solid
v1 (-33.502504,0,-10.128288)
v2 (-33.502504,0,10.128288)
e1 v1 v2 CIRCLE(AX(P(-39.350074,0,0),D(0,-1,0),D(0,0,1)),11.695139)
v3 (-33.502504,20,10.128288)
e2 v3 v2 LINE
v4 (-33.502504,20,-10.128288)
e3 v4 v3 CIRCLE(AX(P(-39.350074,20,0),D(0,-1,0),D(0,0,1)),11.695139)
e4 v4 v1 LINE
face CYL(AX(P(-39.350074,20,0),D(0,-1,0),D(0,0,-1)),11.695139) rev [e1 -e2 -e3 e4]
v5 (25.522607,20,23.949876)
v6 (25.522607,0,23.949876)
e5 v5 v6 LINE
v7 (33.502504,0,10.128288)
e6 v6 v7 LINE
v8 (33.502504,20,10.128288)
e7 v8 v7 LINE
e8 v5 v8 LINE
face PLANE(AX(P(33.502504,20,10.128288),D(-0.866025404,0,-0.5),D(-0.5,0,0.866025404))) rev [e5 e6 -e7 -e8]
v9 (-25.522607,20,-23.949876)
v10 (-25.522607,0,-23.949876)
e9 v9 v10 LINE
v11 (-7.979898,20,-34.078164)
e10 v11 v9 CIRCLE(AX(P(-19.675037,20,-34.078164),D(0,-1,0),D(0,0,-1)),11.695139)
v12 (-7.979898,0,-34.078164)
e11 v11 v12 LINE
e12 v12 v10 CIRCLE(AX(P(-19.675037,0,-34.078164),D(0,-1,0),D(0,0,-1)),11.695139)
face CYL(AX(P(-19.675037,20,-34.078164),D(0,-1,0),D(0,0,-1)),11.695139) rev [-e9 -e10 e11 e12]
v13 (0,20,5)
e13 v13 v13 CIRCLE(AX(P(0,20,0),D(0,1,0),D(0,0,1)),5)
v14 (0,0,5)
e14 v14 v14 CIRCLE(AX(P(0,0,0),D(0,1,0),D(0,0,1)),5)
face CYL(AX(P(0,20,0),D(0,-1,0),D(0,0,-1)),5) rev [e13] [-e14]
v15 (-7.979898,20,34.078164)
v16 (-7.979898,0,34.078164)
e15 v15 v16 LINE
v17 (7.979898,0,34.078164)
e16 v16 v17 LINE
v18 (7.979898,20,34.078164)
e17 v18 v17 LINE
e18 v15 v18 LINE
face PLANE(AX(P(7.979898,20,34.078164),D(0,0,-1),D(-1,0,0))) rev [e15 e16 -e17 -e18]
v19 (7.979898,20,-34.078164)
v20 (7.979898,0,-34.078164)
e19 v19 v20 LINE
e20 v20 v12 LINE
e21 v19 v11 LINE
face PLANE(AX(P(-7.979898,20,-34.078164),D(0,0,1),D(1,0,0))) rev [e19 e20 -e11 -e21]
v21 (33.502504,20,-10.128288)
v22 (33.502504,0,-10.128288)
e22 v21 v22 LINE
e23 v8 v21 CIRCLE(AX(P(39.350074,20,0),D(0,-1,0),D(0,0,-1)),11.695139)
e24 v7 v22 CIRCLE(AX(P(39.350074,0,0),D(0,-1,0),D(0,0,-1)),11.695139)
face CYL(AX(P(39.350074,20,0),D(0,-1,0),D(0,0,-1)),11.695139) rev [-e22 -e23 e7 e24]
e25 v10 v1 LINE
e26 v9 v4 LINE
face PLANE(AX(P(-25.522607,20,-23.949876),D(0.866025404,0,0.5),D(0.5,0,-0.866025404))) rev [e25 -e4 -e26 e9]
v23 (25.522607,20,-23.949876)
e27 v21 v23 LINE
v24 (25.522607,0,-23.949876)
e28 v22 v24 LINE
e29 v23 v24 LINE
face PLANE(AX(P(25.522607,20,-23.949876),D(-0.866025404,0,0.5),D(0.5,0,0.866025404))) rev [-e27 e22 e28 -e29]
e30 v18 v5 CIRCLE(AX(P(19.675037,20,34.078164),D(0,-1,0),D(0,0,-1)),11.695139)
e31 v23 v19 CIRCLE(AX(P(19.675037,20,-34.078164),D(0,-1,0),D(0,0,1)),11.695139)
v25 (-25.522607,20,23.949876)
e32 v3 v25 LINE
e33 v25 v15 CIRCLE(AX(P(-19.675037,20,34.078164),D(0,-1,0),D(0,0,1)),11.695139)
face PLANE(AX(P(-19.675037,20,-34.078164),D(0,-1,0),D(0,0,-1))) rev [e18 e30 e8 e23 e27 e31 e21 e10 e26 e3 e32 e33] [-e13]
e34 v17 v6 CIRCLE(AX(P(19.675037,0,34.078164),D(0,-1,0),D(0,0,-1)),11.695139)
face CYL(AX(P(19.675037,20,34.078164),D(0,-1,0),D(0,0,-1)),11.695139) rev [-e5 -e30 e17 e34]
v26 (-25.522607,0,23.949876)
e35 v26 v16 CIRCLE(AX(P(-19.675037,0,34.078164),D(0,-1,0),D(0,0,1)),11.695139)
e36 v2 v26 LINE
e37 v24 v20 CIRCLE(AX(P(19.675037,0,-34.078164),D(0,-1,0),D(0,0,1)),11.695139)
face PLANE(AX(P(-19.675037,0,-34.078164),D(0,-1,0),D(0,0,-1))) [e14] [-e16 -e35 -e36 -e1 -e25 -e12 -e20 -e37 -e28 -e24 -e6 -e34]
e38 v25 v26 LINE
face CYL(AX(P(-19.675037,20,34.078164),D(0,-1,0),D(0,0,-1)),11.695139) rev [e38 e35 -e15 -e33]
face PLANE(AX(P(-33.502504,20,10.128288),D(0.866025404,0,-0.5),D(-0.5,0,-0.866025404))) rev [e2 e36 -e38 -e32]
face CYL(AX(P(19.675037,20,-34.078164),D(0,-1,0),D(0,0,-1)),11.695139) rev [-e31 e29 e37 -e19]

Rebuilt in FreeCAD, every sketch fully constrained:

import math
import FreeCAD as App
import Part
import Sketcher

V = App.Vector
Q = App.Units.Quantity

doc = App.newDocument("Part")
body = doc.addObject("PartDesign::Body", "Body")

sketch1 = body.newObject("Sketcher::SketchObject", "Sketch")
sketch1.AttachmentSupport = (doc.getObject("XZ_Plane"), [""])
sketch1.MapMode = "FlatFace"
sketch1.addGeometry([
    Part.LineSegment(V(8, -34, 0), V(-8, -34, 0)),
    Part.ArcOfCircle(Part.Circle(V(-20, -34, 0), V(0, 0, 1), 12), math.radians(0), math.radians(120)),
    Part.LineSegment(V(-26, -24, 0), V(-34, -10, 0)),
    Part.ArcOfCircle(Part.Circle(V(-39, 0, 0), V(0, 0, 1), 12), math.radians(-60), math.radians(60)),
    Part.LineSegment(V(-34, 10, 0), V(-26, 24, 0)),
    Part.ArcOfCircle(Part.Circle(V(-20, 34, 0), V(0, 0, 1), 12), math.radians(-120), math.radians(0)),
    Part.LineSegment(V(-8, 34, 0), V(8, 34, 0)),
    Part.ArcOfCircle(Part.Circle(V(20, 34, 0), V(0, 0, 1), 12), math.radians(180), math.radians(300)),
    Part.LineSegment(V(26, 24, 0), V(34, 10, 0)),
    Part.ArcOfCircle(Part.Circle(V(39, 0, 0), V(0, 0, 1), 12), math.radians(120), math.radians(240)),
    Part.LineSegment(V(34, -10, 0), V(26, -24, 0)),
    Part.ArcOfCircle(Part.Circle(V(20, -34, 0), V(0, 0, 1), 12), math.radians(60), math.radians(180)),
    Part.Circle(V(0, 0, 0), V(0, 0, 1), 5),
], False)
sketch1.addConstraint([
    Sketcher.Constraint("Coincident", 0, 2, 1, 1),
    Sketcher.Constraint("Coincident", 1, 2, 2, 1),
    Sketcher.Constraint("Coincident", 2, 2, 3, 1),
    Sketcher.Constraint("Coincident", 3, 2, 4, 1),
    Sketcher.Constraint("Coincident", 4, 2, 5, 1),
    Sketcher.Constraint("Coincident", 5, 2, 6, 1),
    Sketcher.Constraint("Coincident", 6, 2, 7, 1),
    Sketcher.Constraint("Coincident", 7, 2, 8, 1),
    Sketcher.Constraint("Coincident", 8, 2, 9, 1),
    Sketcher.Constraint("Coincident", 9, 2, 10, 1),
    Sketcher.Constraint("Coincident", 10, 2, 11, 1),
    Sketcher.Constraint("Coincident", 11, 2, 0, 1),
    Sketcher.Constraint("Horizontal", 0),
    Sketcher.Constraint("Horizontal", 6),
    Sketcher.Constraint("Coincident", 12, 3, -1, 1),
    Sketcher.Constraint("Equal", 1, 3),
    Sketcher.Constraint("Equal", 3, 5),
    Sketcher.Constraint("Equal", 5, 7),
    Sketcher.Constraint("Equal", 7, 9),
    Sketcher.Constraint("Equal", 9, 11),
    Sketcher.Constraint("Symmetric", 1, 3, 7, 3, -1, 1),
    Sketcher.Constraint("Symmetric", 3, 3, 9, 3, -1, 1),
    Sketcher.Constraint("Symmetric", 5, 3, 11, 3, -1, 1),
    Sketcher.Constraint("Symmetric", 5, 3, 7, 3, -2),
    Sketcher.Constraint("Symmetric", 3, 2, 8, 2, -2),
    Sketcher.Constraint("Parallel", 2, 8),
    Sketcher.Constraint("Parallel", 4, 10),
    Sketcher.Constraint("Horizontal", 11, 3, 0, 2),
    Sketcher.Constraint("Horizontal", 7, 3, 5, 2),
    Sketcher.Constraint("Horizontal", 4, 2, 7, 2),
    Sketcher.Constraint("Horizontal", 2, 2, 9, 2),
    Sketcher.Constraint("Vertical", 2, 2, 3, 2),
    Sketcher.Constraint("Diameter", 12, 10.0),
    Sketcher.Constraint("Angle", 2, Q("120 deg")),
    Sketcher.Constraint("Radius", 1, 11.695139),
    Sketcher.Constraint("DistanceX", 0, 2, 0, 1, 15.959795),
    Sketcher.Constraint("DistanceX", 3, 3, 7, 3, 59.025111),
    Sketcher.Constraint("DistanceX", 1, 2, 1, 3, 5.84757),
    Sketcher.Constraint("DistanceX", 3, 3, 2, 2, 5.84757),
])
pad1 = body.newObject("PartDesign::Pad", "Pad")
pad1.Profile = sketch1
pad1.Length = 20
pad1.Reversed = True

doc.recompute()
